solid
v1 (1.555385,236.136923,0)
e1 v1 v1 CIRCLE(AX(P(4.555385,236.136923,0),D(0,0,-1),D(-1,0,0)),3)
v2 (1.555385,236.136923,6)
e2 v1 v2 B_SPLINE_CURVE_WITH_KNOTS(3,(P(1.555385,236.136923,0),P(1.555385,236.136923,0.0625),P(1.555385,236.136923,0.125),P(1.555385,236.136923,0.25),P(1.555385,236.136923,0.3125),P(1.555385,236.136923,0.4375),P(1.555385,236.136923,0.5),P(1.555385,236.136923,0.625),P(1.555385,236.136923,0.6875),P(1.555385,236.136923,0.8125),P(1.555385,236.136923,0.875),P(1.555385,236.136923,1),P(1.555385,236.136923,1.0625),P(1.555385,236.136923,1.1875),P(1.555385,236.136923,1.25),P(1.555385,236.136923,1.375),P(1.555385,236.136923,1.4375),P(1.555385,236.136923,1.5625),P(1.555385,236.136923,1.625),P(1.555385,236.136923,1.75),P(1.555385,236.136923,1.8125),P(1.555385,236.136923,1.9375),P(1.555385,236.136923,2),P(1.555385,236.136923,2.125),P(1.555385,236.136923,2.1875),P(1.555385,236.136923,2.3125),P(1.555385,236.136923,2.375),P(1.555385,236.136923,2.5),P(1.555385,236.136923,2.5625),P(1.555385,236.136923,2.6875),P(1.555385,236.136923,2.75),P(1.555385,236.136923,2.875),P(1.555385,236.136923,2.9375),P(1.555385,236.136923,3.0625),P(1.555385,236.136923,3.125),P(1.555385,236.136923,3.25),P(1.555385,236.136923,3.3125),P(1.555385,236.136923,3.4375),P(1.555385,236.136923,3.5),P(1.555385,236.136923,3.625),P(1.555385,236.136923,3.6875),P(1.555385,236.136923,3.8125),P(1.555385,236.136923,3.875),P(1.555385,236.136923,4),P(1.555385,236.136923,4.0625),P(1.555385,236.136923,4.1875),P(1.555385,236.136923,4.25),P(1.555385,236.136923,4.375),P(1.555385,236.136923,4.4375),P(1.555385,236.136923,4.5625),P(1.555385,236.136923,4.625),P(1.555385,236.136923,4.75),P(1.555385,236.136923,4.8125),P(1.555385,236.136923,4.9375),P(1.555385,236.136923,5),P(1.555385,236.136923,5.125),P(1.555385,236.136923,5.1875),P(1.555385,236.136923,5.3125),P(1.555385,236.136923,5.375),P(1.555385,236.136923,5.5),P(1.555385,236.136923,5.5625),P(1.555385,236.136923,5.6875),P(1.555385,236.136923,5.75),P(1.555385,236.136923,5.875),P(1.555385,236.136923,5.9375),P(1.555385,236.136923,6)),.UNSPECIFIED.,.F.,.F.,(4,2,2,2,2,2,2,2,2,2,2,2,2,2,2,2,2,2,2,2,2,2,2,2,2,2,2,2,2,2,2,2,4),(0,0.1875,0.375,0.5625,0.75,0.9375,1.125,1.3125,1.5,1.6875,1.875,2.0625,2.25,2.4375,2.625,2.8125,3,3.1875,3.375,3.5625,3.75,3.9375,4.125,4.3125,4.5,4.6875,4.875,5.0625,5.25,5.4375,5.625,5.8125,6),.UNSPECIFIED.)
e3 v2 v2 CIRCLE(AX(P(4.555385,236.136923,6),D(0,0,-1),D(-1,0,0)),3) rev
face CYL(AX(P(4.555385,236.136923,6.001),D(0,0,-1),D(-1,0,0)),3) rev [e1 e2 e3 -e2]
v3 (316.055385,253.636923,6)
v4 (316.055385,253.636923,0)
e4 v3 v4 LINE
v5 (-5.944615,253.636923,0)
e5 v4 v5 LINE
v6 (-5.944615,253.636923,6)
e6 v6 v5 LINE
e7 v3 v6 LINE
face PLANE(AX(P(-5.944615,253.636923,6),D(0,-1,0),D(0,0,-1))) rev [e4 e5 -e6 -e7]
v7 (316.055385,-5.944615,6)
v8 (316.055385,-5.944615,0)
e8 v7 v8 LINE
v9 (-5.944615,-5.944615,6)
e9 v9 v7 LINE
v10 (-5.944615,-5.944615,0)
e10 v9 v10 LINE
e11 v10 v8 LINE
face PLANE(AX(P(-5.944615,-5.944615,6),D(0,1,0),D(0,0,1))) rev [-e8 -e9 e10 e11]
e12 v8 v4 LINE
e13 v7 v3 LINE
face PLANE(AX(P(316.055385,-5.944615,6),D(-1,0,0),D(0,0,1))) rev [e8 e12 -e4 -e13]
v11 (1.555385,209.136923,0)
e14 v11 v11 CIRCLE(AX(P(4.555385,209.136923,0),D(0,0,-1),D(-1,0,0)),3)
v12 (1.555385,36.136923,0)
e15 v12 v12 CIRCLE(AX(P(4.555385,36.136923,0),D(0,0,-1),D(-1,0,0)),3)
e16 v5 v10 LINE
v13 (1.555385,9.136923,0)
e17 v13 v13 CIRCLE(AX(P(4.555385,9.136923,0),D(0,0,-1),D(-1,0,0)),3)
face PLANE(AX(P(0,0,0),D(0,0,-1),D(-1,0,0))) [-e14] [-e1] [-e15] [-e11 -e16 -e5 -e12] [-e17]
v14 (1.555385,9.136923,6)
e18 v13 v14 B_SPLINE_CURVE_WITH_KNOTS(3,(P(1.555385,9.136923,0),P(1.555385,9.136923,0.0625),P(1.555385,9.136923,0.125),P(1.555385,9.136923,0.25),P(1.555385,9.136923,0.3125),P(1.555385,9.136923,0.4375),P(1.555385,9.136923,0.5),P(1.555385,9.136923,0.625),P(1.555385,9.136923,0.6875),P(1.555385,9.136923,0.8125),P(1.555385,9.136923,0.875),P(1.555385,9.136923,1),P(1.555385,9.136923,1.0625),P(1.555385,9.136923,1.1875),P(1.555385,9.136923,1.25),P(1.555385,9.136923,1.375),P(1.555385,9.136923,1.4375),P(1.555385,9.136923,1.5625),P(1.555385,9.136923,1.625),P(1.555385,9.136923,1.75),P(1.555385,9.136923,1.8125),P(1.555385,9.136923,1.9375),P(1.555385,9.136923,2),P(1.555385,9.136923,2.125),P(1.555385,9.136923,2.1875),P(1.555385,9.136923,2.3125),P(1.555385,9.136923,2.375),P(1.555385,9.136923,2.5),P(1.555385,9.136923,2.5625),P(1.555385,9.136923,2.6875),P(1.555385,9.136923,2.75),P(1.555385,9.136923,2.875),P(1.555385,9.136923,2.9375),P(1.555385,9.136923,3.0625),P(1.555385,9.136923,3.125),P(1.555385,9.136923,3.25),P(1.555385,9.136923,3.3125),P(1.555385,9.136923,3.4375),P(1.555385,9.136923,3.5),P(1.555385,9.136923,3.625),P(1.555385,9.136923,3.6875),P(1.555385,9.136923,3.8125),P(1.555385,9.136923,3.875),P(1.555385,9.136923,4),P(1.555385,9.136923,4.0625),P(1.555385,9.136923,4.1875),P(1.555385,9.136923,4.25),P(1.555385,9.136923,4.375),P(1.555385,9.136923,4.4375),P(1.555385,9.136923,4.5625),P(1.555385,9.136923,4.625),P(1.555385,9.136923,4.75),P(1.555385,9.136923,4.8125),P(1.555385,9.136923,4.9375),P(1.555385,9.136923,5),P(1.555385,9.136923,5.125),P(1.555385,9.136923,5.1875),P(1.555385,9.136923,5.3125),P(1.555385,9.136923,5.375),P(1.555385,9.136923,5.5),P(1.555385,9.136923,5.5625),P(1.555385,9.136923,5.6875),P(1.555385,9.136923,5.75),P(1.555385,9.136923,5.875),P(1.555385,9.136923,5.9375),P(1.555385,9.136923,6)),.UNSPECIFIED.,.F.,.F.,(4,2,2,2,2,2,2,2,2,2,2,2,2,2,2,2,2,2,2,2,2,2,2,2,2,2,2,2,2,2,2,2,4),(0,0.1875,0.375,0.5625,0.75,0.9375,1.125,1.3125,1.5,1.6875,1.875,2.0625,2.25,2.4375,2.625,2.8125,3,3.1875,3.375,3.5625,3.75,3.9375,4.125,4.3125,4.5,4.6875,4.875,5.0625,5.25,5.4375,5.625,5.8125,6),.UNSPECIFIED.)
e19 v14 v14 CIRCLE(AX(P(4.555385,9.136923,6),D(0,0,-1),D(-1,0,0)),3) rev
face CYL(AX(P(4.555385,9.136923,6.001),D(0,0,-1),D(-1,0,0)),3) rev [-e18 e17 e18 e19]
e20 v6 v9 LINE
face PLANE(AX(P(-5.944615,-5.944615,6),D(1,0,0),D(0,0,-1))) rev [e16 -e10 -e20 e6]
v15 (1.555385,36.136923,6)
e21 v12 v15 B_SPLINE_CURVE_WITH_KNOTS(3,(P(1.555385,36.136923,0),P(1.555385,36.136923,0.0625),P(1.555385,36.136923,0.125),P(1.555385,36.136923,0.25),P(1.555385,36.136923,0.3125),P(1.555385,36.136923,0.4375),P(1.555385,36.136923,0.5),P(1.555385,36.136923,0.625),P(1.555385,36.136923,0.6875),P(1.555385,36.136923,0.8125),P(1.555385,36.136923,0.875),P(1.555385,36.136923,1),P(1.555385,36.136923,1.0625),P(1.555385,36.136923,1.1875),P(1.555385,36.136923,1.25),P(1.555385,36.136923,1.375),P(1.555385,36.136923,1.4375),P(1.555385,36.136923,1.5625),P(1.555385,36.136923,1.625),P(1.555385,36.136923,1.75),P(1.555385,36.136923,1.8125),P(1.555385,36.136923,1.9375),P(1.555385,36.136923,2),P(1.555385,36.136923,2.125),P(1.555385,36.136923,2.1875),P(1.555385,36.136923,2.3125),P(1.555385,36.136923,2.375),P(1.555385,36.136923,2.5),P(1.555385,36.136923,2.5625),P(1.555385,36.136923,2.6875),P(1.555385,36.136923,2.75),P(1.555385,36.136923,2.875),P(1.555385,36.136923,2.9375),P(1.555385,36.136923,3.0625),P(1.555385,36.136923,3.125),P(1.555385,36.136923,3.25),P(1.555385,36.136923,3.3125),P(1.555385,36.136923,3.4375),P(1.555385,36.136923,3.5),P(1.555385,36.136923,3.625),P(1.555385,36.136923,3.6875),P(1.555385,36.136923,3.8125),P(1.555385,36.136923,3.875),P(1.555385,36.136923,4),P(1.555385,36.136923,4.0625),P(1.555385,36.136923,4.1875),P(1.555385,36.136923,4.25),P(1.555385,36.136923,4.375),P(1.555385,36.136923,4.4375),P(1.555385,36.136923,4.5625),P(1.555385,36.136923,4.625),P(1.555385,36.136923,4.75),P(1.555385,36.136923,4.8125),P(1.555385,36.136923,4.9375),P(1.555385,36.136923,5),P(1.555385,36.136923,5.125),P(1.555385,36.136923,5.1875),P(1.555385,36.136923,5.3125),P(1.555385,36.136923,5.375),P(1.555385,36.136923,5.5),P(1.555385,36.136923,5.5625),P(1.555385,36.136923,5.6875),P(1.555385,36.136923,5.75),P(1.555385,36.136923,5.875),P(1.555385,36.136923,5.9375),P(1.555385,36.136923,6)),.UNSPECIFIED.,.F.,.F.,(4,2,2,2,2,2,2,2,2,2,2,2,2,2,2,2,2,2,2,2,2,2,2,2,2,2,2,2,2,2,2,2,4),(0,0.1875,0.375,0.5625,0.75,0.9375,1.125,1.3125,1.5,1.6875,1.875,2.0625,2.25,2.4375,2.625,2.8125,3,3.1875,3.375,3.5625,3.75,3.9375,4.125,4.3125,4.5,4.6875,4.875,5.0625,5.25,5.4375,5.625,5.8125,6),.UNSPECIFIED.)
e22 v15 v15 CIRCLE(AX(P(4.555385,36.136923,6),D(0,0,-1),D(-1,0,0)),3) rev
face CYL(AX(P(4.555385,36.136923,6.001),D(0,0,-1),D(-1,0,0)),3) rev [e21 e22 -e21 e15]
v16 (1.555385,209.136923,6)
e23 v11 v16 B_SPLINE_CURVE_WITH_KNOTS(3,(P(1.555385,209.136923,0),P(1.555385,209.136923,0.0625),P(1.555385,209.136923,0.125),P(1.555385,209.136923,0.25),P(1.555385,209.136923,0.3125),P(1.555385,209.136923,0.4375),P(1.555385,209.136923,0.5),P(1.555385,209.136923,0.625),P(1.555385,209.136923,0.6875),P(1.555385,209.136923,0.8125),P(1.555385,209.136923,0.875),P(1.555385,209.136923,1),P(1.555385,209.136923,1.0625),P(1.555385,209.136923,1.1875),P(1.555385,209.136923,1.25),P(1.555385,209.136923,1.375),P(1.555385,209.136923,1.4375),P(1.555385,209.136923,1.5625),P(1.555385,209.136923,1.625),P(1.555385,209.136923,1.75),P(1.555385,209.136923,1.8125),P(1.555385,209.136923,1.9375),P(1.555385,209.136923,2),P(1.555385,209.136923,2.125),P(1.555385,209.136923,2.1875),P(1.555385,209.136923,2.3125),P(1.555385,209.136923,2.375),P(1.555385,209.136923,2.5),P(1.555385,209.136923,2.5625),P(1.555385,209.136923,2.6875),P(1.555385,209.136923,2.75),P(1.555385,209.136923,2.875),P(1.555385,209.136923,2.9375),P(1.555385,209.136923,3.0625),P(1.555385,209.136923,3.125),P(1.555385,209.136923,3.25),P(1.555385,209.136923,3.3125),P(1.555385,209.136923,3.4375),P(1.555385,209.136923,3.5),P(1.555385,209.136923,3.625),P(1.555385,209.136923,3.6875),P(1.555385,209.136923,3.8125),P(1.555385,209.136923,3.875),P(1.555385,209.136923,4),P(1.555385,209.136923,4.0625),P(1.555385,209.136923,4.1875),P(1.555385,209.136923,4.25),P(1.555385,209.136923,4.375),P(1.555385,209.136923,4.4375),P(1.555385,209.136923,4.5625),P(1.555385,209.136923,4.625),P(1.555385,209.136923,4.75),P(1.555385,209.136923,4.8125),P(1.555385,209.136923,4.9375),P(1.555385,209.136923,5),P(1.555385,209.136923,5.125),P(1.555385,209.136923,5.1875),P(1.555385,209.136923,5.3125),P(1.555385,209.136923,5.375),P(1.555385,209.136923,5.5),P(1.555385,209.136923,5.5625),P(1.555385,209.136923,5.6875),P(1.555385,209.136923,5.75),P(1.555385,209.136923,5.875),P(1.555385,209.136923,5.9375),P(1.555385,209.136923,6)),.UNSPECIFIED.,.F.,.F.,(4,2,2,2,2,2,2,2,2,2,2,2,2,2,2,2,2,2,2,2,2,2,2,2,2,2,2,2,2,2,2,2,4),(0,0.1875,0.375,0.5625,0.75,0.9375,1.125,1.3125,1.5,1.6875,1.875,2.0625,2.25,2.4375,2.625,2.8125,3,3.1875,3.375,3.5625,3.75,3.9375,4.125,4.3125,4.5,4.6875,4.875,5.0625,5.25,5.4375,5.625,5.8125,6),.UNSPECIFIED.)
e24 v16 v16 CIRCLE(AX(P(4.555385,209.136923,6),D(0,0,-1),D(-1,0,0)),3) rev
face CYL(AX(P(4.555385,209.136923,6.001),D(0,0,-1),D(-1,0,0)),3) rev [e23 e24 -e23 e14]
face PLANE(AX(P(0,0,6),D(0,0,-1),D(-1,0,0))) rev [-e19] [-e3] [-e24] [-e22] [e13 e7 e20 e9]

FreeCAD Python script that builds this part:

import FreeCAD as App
import Part
import Sketcher
from FreeCAD import Vector
Q = App.Units.Quantity


def add_polygon(sketch, points):
    """Adds a closed chain of lines whose ends are joined by coincident constraints."""
    first, n = sketch.GeometryCount, len(points)
    for a, b in zip(points, points[1:] + points[:1]):
        sketch.addGeometry(Part.LineSegment(App.Vector(*a, 0), App.Vector(*b, 0)), False)
    for i in range(n):
        sketch.addConstraint(Sketcher.Constraint("Coincident", first + i, 2, first + (i + 1) % n, 1))

doc = App.newDocument("Part")
body = doc.addObject("PartDesign::Body", "Body")

# Sketch on XY plane
sketch1 = body.newObject("Sketcher::SketchObject", "Sketch")
sketch1.AttachmentSupport = (doc.getObject("XY_Plane"), [""])
sketch1.MapMode = "FlatFace"
add_polygon(sketch1, [(-6, 254), (-6, -6), (316, -6), (316, 254)])  # lines 0-3
sketch1.addConstraint([
    Sketcher.Constraint("Vertical", 0),
    Sketcher.Constraint("Horizontal", 1),
    Sketcher.Constraint("Vertical", 2),
    Sketcher.Constraint("Horizontal", 3),
    Sketcher.Constraint("DistanceX", 1, 1, 1, 2, Q("322 mm")),
    Sketcher.Constraint("DistanceY", 0, 2, 0, 1, Q("259.581538 mm")),
    Sketcher.Constraint("DistanceX", 0, 2, -1, 1, Q("5.944615 mm")),
    Sketcher.Constraint("DistanceY", 0, 2, -1, 1, Q("5.944615 mm")),
])
pad1 = body.newObject("PartDesign::Pad", "Pad")
pad1.Profile = sketch1
pad1.Length = 6

# Sketch on XY plane
sketch2 = body.newObject("Sketcher::SketchObject", "Sketch001")
sketch2.AttachmentSupport = (doc.getObject("XY_Plane"), [""])
sketch2.MapMode = "FlatFace"
sketch2.addGeometry(Part.Circle(Vector(4.6, 236.1, 0), Vector(0, 0, 1), 3), False)
sketch2.addConstraint([
    Sketcher.Constraint("Diameter", 0, Q("6 mm")),
    Sketcher.Constraint("DistanceX", -1, 1, 0, 3, Q("4.555385 mm")),
    Sketcher.Constraint("DistanceY", -1, 1, 0, 3, Q("236.136923 mm")),
])
pocket1 = body.newObject("PartDesign::Pocket", "Pocket")
pocket1.Profile = sketch2
pocket1.Type = "UpToFirst"
pocket1.Reversed = True

# Sketch on XY plane
sketch3 = body.newObject("Sketcher::SketchObject", "Sketch002")
sketch3.AttachmentSupport = (doc.getObject("XY_Plane"), [""])
sketch3.MapMode = "FlatFace"
sketch3.addGeometry(Part.Circle(Vector(4.6, 209.1, 0), Vector(0, 0, 1), 3), False)
sketch3.addConstraint([
    Sketcher.Constraint("Diameter", 0, Q("6 mm")),
    Sketcher.Constraint("DistanceX", -1, 1, 0, 3, Q("4.555385 mm")),
    Sketcher.Constraint("DistanceY", -1, 1, 0, 3, Q("209.136923 mm")),
])
pocket2 = body.newObject("PartDesign::Pocket", "Pocket001")
pocket2.Profile = sketch3
pocket2.Type = "UpToFirst"
pocket2.Reversed = True

# Sketch on XY plane
sketch4 = body.newObject("Sketcher::SketchObject", "Sketch003")
sketch4.AttachmentSupport = (doc.getObject("XY_Plane"), [""])
sketch4.MapMode = "FlatFace"
sketch4.addGeometry(Part.Circle(Vector(4.6, 36.1, 0), Vector(0, 0, 1), 3), False)
sketch4.addConstraint([
    Sketcher.Constraint("Diameter", 0, Q("6 mm")),
    Sketcher.Constraint("DistanceX", -1, 1, 0, 3, Q("4.555385 mm")),
    Sketcher.Constraint("DistanceY", -1, 1, 0, 3, Q("36.136923 mm")),
])
pocket3 = body.newObject("PartDesign::Pocket", "Pocket002")
pocket3.Profile = sketch4
pocket3.Type = "UpToFirst"
pocket3.Reversed = True

# Sketch on XY plane
sketch5 = body.newObject("Sketcher::SketchObject", "Sketch004")
sketch5.AttachmentSupport = (doc.getObject("XY_Plane"), [""])
sketch5.MapMode = "FlatFace"
sketch5.addGeometry(Part.Circle(Vector(4.6, 9.1, 0), Vector(0, 0, 1), 3), False)
sketch5.addConstraint([
    Sketcher.Constraint("Diameter", 0, Q("6 mm")),
    Sketcher.Constraint("DistanceX", -1, 1, 0, 3, Q("4.555385 mm")),
    Sketcher.Constraint("DistanceY", -1, 1, 0, 3, Q("9.136923 mm")),
])
pocket4 = body.newObject("PartDesign::Pocket", "Pocket003")
pocket4.Profile = sketch5
pocket4.Type = "UpToFirst"
pocket4.Reversed = True

doc.recompute()
